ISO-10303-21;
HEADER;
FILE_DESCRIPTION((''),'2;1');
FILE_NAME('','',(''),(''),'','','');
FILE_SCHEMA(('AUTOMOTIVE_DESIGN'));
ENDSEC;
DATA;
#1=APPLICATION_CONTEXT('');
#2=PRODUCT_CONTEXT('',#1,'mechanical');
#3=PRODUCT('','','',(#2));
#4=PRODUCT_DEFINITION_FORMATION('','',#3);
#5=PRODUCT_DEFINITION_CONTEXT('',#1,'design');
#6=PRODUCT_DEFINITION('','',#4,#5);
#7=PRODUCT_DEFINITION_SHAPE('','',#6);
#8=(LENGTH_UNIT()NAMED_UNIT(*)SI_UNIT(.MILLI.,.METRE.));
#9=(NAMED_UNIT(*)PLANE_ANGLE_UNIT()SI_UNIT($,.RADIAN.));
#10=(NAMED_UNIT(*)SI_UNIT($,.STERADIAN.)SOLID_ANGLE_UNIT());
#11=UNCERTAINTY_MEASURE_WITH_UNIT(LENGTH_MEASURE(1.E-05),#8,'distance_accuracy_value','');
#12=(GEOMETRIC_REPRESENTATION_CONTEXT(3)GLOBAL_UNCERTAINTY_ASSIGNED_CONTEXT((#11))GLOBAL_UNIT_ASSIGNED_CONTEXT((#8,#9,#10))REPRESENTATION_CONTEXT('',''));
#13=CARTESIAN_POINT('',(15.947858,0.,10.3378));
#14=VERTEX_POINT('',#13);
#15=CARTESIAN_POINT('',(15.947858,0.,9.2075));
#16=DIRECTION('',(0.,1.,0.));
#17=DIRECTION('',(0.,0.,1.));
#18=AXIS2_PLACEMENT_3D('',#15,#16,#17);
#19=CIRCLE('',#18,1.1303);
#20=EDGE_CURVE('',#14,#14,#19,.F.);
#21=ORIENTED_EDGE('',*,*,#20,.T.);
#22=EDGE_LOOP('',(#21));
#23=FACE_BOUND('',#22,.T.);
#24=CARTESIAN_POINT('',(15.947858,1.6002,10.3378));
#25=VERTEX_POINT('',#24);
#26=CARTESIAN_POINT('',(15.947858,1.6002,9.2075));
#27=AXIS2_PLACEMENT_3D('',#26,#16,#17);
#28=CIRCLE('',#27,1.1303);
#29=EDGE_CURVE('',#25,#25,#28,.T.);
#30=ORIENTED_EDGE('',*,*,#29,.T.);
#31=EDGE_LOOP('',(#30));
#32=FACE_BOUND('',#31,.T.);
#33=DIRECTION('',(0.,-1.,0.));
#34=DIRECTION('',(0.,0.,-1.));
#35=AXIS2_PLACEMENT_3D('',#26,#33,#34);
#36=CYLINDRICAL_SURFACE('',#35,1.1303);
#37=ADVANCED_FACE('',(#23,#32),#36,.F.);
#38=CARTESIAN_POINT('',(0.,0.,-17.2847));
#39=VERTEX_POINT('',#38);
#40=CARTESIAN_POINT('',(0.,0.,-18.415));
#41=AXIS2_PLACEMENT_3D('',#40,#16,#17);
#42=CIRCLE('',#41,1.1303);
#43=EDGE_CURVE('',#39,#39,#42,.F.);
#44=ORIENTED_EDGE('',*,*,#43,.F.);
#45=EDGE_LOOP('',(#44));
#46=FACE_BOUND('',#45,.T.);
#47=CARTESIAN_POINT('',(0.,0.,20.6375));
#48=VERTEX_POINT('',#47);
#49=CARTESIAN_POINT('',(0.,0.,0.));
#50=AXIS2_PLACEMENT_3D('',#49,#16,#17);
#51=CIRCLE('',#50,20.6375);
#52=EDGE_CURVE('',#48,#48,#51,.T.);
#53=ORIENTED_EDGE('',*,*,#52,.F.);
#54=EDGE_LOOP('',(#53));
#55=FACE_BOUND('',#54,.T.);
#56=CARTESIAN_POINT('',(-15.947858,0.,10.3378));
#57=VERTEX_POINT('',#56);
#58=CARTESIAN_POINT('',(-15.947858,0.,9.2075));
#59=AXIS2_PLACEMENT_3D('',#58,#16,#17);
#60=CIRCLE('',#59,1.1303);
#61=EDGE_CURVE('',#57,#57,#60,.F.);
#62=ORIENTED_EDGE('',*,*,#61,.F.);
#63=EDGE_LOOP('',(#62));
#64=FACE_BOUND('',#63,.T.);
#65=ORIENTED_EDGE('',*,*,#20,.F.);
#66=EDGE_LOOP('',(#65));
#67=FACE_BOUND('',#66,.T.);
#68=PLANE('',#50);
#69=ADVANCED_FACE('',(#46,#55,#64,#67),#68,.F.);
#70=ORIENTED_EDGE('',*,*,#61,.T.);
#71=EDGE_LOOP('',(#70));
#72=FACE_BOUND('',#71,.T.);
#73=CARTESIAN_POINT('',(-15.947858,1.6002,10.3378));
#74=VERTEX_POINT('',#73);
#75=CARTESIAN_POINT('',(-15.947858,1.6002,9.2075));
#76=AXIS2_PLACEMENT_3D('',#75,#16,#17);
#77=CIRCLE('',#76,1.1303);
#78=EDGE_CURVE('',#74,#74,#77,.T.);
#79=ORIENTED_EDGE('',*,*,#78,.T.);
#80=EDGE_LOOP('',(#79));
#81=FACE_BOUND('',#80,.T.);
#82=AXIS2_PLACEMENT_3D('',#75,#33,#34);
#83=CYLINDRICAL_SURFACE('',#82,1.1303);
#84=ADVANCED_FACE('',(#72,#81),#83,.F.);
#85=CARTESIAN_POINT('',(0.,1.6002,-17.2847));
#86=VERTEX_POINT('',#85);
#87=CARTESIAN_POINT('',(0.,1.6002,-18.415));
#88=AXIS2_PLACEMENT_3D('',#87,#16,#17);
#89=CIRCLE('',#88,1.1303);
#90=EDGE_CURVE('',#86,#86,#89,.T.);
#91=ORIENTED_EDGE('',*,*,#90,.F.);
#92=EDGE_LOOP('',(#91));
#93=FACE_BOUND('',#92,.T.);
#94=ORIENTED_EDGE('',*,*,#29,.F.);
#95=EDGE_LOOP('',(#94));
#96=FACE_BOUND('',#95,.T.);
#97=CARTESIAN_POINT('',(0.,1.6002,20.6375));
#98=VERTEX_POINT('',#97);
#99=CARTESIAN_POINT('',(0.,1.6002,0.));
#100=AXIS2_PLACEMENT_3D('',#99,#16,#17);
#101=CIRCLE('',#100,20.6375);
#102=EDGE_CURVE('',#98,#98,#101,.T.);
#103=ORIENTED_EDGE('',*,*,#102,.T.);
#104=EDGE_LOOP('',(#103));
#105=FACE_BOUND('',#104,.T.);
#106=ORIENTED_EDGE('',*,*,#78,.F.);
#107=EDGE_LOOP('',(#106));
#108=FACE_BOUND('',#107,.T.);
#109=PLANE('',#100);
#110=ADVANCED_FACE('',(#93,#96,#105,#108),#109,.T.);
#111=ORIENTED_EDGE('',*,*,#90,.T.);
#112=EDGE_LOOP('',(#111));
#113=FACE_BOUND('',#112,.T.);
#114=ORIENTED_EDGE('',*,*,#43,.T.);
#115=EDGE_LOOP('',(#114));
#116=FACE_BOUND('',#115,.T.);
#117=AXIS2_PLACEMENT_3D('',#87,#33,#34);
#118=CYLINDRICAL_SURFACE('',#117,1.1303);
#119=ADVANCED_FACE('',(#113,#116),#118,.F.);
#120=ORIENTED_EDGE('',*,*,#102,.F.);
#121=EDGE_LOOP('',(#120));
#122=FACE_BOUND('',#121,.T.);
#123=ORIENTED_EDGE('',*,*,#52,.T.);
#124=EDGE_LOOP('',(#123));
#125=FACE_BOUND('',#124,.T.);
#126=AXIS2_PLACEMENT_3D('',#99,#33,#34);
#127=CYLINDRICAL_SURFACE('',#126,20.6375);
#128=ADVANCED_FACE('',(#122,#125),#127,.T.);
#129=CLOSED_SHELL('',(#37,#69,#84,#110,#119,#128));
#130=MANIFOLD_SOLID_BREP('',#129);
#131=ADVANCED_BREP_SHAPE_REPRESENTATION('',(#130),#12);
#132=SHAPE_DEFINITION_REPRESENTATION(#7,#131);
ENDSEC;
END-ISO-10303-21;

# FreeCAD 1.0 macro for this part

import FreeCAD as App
import Part
import Sketcher

V = App.Vector
Q = App.Units.Quantity

doc = App.newDocument("Part")
body = doc.addObject("PartDesign::Body", "Body")

# Sketch on XZ plane
sketch1 = body.newObject("Sketcher::SketchObject", "Sketch")
sketch1.AttachmentSupport = (doc.getObject("XZ_Plane"), [""])
sketch1.MapMode = "FlatFace"
sketch1.addGeometry(Part.Circle(V(0, 0, 0), V(0, 0, 1), 20.6375), False)
sketch1.addConstraint([
    Sketcher.Constraint("Coincident", 0, 3, -1, 1),
    Sketcher.Constraint("Diameter", 0, Q("1.625 in")),
])
pad1 = body.newObject("PartDesign::Pad", "Pad")
pad1.Profile = sketch1
pad1.Length = Q("0.063 in")
pad1.Reversed = True

# Sketch on XZ plane
sketch2 = body.newObject("Sketcher::SketchObject", "Sketch001")
sketch2.AttachmentSupport = (doc.getObject("XZ_Plane"), [""])
sketch2.MapMode = "FlatFace"
sketch2.addGeometry([
    Part.Circle(V(0, -18.415, 0), V(0, 0, 1), 1.1303),
    Part.Circle(V(15.947858, 9.2075, 0), V(0, 0, 1), 1.1303),
    Part.Circle(V(-15.947858, 9.2075, 0), V(0, 0, 1), 1.1303),
], False)
sketch2.addConstraint([
    Sketcher.Constraint("Equal", 0, 1),
    Sketcher.Constraint("Equal", 1, 2),
    Sketcher.Constraint("Symmetric", 1, 3, 2, 3, -2),
    Sketcher.Constraint("PointOnObject", 0, 3, -2),
    Sketcher.Constraint("Diameter", 0, Q("0.089 in")),
    Sketcher.Constraint("DistanceY", 0, 3, -1, 1, Q("0.725 in")),
    Sketcher.Constraint("DistanceY", -1, 1, 1, 3, Q("0.3625 in")),
    Sketcher.Constraint("DistanceX", -1, 1, 1, 3, Q("15.947858 mm")),
])
pocket1 = body.newObject("PartDesign::Pocket", "Pocket")
pocket1.Profile = sketch2
pocket1.Type = "ThroughAll"
pocket1.Midplane = True

doc.recompute()
